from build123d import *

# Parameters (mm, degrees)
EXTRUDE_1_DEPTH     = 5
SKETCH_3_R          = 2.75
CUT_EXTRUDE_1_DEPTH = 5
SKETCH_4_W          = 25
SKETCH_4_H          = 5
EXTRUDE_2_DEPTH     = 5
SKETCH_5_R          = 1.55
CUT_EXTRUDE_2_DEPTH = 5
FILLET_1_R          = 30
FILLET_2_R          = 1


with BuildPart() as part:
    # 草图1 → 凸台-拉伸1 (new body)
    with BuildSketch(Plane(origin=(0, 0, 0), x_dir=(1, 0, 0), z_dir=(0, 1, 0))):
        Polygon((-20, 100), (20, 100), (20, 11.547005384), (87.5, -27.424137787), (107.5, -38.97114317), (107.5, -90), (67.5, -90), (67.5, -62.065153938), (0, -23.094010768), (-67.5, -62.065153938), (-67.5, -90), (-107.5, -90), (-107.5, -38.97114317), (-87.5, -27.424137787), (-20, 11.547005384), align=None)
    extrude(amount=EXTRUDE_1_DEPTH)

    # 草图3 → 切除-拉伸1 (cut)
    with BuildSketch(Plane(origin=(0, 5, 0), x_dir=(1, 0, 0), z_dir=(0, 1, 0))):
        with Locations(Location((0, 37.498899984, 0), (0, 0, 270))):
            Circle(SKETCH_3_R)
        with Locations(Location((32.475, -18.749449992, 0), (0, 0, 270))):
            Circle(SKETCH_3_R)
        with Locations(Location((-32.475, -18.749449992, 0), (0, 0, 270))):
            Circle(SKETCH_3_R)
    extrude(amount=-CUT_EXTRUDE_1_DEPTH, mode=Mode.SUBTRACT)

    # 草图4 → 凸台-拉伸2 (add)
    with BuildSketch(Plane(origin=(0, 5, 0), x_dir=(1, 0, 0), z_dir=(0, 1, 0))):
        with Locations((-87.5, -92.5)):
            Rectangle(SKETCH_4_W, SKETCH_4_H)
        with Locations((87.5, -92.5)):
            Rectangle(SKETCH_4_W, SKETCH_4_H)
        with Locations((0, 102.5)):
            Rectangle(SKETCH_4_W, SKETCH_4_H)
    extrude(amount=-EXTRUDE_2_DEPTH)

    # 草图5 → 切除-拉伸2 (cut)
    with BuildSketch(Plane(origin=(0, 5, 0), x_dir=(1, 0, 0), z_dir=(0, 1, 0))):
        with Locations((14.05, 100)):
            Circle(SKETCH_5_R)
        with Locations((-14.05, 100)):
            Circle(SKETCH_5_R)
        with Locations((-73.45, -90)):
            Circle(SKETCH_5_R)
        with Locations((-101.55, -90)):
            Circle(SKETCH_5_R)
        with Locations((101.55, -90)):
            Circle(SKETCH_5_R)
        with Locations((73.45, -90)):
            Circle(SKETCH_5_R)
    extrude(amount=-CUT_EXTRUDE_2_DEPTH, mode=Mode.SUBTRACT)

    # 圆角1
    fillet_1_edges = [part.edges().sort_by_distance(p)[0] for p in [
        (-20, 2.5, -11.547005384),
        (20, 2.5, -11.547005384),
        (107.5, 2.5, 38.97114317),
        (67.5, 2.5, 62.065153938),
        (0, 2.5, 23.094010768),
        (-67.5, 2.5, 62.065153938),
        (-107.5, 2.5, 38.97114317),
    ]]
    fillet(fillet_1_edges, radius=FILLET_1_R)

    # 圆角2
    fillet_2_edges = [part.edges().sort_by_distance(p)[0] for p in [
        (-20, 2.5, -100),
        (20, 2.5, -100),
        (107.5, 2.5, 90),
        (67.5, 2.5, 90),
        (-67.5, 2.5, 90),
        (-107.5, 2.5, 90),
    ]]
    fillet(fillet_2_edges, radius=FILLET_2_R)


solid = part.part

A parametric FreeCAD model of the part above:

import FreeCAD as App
import Part
import Sketcher

V = App.Vector
Q = App.Units.Quantity


def edges_at(feature, points):
    """Names of the edges that pass closest to the given points."""
    edges = feature.Shape.Edges
    near = lambda p: min(range(len(edges)), key=lambda i: edges[i].distToShape(Part.Vertex(*p))[0])
    return sorted({f"Edge{near(p) + 1}" for p in points})

doc = App.newDocument("Part")
params = doc.addObject("Spreadsheet::Sheet", "Params")
for row, (alias, value) in enumerate([
    ("sketch1_width", "40 mm"),
    ("pad1_length", "5 mm"),
    ("sketch2_diameter", "5.5 mm"),
    ("pocket1_length", "5 mm"),
    ("sketch3_width", "25 mm"),
    ("sketch3_height", "5 mm"),
    ("pad2_length", "5 mm"),
    ("sketch4_diameter", "3.1 mm"),
    ("pocket2_length", "5 mm"),
    ("fillet_radius", "30 mm"),
    ("fillet2_radius", "1 mm"),
], start=1):
    params.set(f"A{row}", alias)
    params.set(f"B{row}", "=" + value)
    params.setAlias(f"B{row}", alias)

body = doc.addObject("PartDesign::Body", "Body")

sketch1 = body.newObject("Sketcher::SketchObject", "Sketch")
sketch1.AttachmentSupport = (doc.getObject("XZ_Plane"), [""])
sketch1.MapMode = "FlatFace"
sketch1.addGeometry(Part.LineSegment(V(20, -100, 0), V(-20, -100, 0)), False)
sketch1.addGeometry(Part.LineSegment(V(-20, -100, 0), V(-20, -12, 0)), False)
sketch1.addGeometry(Part.LineSegment(V(-20, -12, 0), V(-88, 27, 0)), False)
sketch1.addGeometry(Part.LineSegment(V(-88, 27, 0), V(-108, 39, 0)), False)
sketch1.addGeometry(Part.LineSegment(V(-108, 39, 0), V(-108, 90, 0)), False)
sketch1.addGeometry(Part.LineSegment(V(-108, 90, 0), V(-68, 90, 0)), False)
sketch1.addGeometry(Part.LineSegment(V(-68, 90, 0), V(-68, 62, 0)), False)
sketch1.addGeometry(Part.LineSegment(V(-68, 62, 0), V(0, 23, 0)), False)
sketch1.addGeometry(Part.LineSegment(V(0, 23, 0), V(68, 62, 0)), False)
sketch1.addGeometry(Part.LineSegment(V(68, 62, 0), V(68, 90, 0)), False)
sketch1.addGeometry(Part.LineSegment(V(68, 90, 0), V(108, 90, 0)), False)
sketch1.addGeometry(Part.LineSegment(V(108, 90, 0), V(108, 39, 0)), False)
sketch1.addGeometry(Part.LineSegment(V(108, 39, 0), V(88, 27, 0)), False)
sketch1.addGeometry(Part.LineSegment(V(88, 27, 0), V(20, -12, 0)), False)
sketch1.addGeometry(Part.LineSegment(V(20, -12, 0), V(20, -100, 0)), False)
sketch1.addConstraint(Sketcher.Constraint("Coincident", 0, 2, 1, 1))
sketch1.addConstraint(Sketcher.Constraint("Coincident", 1, 2, 2, 1))
sketch1.addConstraint(Sketcher.Constraint("Coincident", 2, 2, 3, 1))
sketch1.addConstraint(Sketcher.Constraint("Coincident", 3, 2, 4, 1))
sketch1.addConstraint(Sketcher.Constraint("Coincident", 4, 2, 5, 1))
sketch1.addConstraint(Sketcher.Constraint("Coincident", 5, 2, 6, 1))
sketch1.addConstraint(Sketcher.Constraint("Coincident", 6, 2, 7, 1))
sketch1.addConstraint(Sketcher.Constraint("Coincident", 7, 2, 8, 1))
sketch1.addConstraint(Sketcher.Constraint("Coincident", 8, 2, 9, 1))
sketch1.addConstraint(Sketcher.Constraint("Coincident", 9, 2, 10, 1))
sketch1.addConstraint(Sketcher.Constraint("Coincident", 10, 2, 11, 1))
sketch1.addConstraint(Sketcher.Constraint("Coincident", 11, 2, 12, 1))
sketch1.addConstraint(Sketcher.Constraint("Coincident", 12, 2, 13, 1))
sketch1.addConstraint(Sketcher.Constraint("Coincident", 13, 2, 14, 1))
sketch1.addConstraint(Sketcher.Constraint("Coincident", 14, 2, 0, 1))
sketch1.addConstraint(Sketcher.Constraint("Horizontal", 0))
sketch1.addConstraint(Sketcher.Constraint("Vertical", 1))
sketch1.addConstraint(Sketcher.Constraint("Vertical", 4))
sketch1.addConstraint(Sketcher.Constraint("Horizontal", 5))
sketch1.addConstraint(Sketcher.Constraint("Vertical", 6))
sketch1.addConstraint(Sketcher.Constraint("Vertical", 9))
sketch1.addConstraint(Sketcher.Constraint("Horizontal", 10))
sketch1.addConstraint(Sketcher.Constraint("Vertical", 11))
sketch1.addConstraint(Sketcher.Constraint("Vertical", 14))
sketch1.addConstraint(Sketcher.Constraint("Symmetric", 6, 2, 8, 2, -2))
sketch1.addConstraint(Sketcher.Constraint("Symmetric", 4, 2, 10, 2, -2))
sketch1.addConstraint(Sketcher.Constraint("Symmetric", 2, 2, 12, 2, -2))
sketch1.addConstraint(Sketcher.Constraint("Symmetric", 1, 2, 13, 2, -2))
sketch1.addConstraint(Sketcher.Constraint("PointOnObject", 7, 2, -2))
sketch1.addConstraint(Sketcher.Constraint("Parallel", 2, 3))
sketch1.addConstraint(Sketcher.Constraint("Parallel", 3, 7))
sketch1.addConstraint(Sketcher.Constraint("Parallel", 8, 12))
sketch1.addConstraint(Sketcher.Constraint("Equal", 0, 5))
sketch1.addConstraint(Sketcher.Constraint("Equal", 2, 7))
sketch1.addConstraint(Sketcher.Constraint("DistanceX", 0, 2, 0, 1, Q("40 mm")))
sketch1.addConstraint(Sketcher.Constraint("Angle", 2, Q("150 deg")))
sketch1.addConstraint(Sketcher.Constraint("DistanceY", 0, 2, -1, 1, Q("100 mm")))
sketch1.addConstraint(Sketcher.Constraint("DistanceY", -1, 1, 4, 2, Q("90 mm")))
sketch1.addConstraint(Sketcher.Constraint("DistanceX", 6, 2, 8, 2, Q("135 mm")))
sketch1.addConstraint(Sketcher.Constraint("DistanceY", 1, 1, 1, 2, Q("88.452995 mm")))
sketch1.addConstraint(Sketcher.Constraint("DistanceY", 6, 2, 6, 1, Q("27.934846 mm")))
sketch1.setExpression("Constraints[34]", "Params.sketch1_width")
pad1 = body.newObject("PartDesign::Pad", "Pad")
pad1.Profile = sketch1
pad1.setExpression("Length", "Params.pad1_length")
pad1.Reversed = True

sketch2 = body.newObject("Sketcher::SketchObject", "Sketch001")
sketch2.AttachmentSupport = (doc.getObject("XZ_Plane"), [""])
sketch2.MapMode = "FlatFace"
sketch2.AttachmentOffset = App.Placement(V(0, 0, -5), App.Rotation())
sketch2.addGeometry(Part.Circle(V(0, -37.5, 0), V(0, 0, 1), 2.8), False)
sketch2.addGeometry(Part.Circle(V(32.5, 18.7, 0), V(0, 0, 1), 2.8), False)
sketch2.addGeometry(Part.Circle(V(-32.5, 18.7, 0), V(0, 0, 1), 2.8), False)
sketch2.addConstraint(Sketcher.Constraint("Equal", 0, 1))
sketch2.addConstraint(Sketcher.Constraint("Equal", 1, 2))
sketch2.addConstraint(Sketcher.Constraint("Symmetric", 1, 3, 2, 3, -2))
sketch2.addConstraint(Sketcher.Constraint("PointOnObject", 0, 3, -2))
sketch2.addConstraint(Sketcher.Constraint("Diameter", 0, Q("5.5 mm")))
sketch2.addConstraint(Sketcher.Constraint("DistanceX", 2, 3, 1, 3, Q("64.95 mm")))
sketch2.addConstraint(Sketcher.Constraint("DistanceY", 0, 3, -1, 1, Q("37.4989 mm")))
sketch2.addConstraint(Sketcher.Constraint("DistanceY", -1, 1, 1, 3, Q("18.74945 mm")))
sketch2.setExpression("Constraints[4]", "Params.sketch2_diameter")
pocket1 = body.newObject("PartDesign::Pocket", "Pocket")
pocket1.Profile = sketch2
pocket1.setExpression("Length", "Params.pocket1_length")
pocket1.Reversed = True

sketch3 = body.newObject("Sketcher::SketchObject", "Sketch002")
sketch3.AttachmentSupport = (doc.getObject("XZ_Plane"), [""])
sketch3.MapMode = "FlatFace"
sketch3.AttachmentOffset = App.Placement(V(0, 0, -5), App.Rotation())
sketch3.addGeometry(Part.LineSegment(V(-100, 90, 0), V(-100, 95, 0)), False)
sketch3.addGeometry(Part.LineSegment(V(-100, 95, 0), V(-75, 95, 0)), False)
sketch3.addGeometry(Part.LineSegment(V(-75, 95, 0), V(-75, 90, 0)), False)
sketch3.addGeometry(Part.LineSegment(V(-75, 90, 0), V(-100, 90, 0)), False)
sketch3.addGeometry(Part.LineSegment(V(75, 90, 0), V(75, 95, 0)), False)
sketch3.addGeometry(Part.LineSegment(V(75, 95, 0), V(100, 95, 0)), False)
sketch3.addGeometry(Part.LineSegment(V(100, 95, 0), V(100, 90, 0)), False)
sketch3.addGeometry(Part.LineSegment(V(100, 90, 0), V(75, 90, 0)), False)
sketch3.addGeometry(Part.LineSegment(V(-12, -105, 0), V(-12, -100, 0)), False)
sketch3.addGeometry(Part.LineSegment(V(-12, -100, 0), V(12, -100, 0)), False)
sketch3.addGeometry(Part.LineSegment(V(12, -100, 0), V(12, -105, 0)), False)
sketch3.addGeometry(Part.LineSegment(V(12, -105, 0), V(-12, -105, 0)), False)
sketch3.addConstraint(Sketcher.Constraint("Coincident", 0, 2, 1, 1))
sketch3.addConstraint(Sketcher.Constraint("Coincident", 1, 2, 2, 1))
sketch3.addConstraint(Sketcher.Constraint("Coincident", 2, 2, 3, 1))
sketch3.addConstraint(Sketcher.Constraint("Coincident", 3, 2, 0, 1))
sketch3.addConstraint(Sketcher.Constraint("Coincident", 4, 2, 5, 1))
sketch3.addConstraint(Sketcher.Constraint("Coincident", 5, 2, 6, 1))
sketch3.addConstraint(Sketcher.Constraint("Coincident", 6, 2, 7, 1))
sketch3.addConstraint(Sketcher.Constraint("Coincident", 7, 2, 4, 1))
sketch3.addConstraint(Sketcher.Constraint("Coincident", 8, 2, 9, 1))
sketch3.addConstraint(Sketcher.Constraint("Coincident", 9, 2, 10, 1))
sketch3.addConstraint(Sketcher.Constraint("Coincident", 10, 2, 11, 1))
sketch3.addConstraint(Sketcher.Constraint("Coincident", 11, 2, 8, 1))
sketch3.addConstraint(Sketcher.Constraint("Vertical", 0))
sketch3.addConstraint(Sketcher.Constraint("Horizontal", 1))
sketch3.addConstraint(Sketcher.Constraint("Vertical", 2))
sketch3.addConstraint(Sketcher.Constraint("Horizontal", 3))
sketch3.addConstraint(Sketcher.Constraint("Vertical", 4))
sketch3.addConstraint(Sketcher.Constraint("Horizontal", 5))
sketch3.addConstraint(Sketcher.Constraint("Vertical", 6))
sketch3.addConstraint(Sketcher.Constraint("Horizontal", 7))
sketch3.addConstraint(Sketcher.Constraint("Vertical", 8))
sketch3.addConstraint(Sketcher.Constraint("Horizontal", 9))
sketch3.addConstraint(Sketcher.Constraint("Vertical", 10))
sketch3.addConstraint(Sketcher.Constraint("Horizontal", 11))
sketch3.addConstraint(Sketcher.Constraint("Symmetric", 1, 2, 4, 2, -2))
sketch3.addConstraint(Sketcher.Constraint("Symmetric", 3, 2, 6, 2, -2))
sketch3.addConstraint(Sketcher.Constraint("Equal", 7, 9))
sketch3.addConstraint(Sketcher.Constraint("Equal", 6, 8))
sketch3.addConstraint(Sketcher.Constraint("DistanceX", 1, 1, 1, 2, Q("25 mm")))
sketch3.addConstraint(Sketcher.Constraint("DistanceY", 0, 1, 0, 2, Q("5 mm")))
sketch3.addConstraint(Sketcher.Constraint("DistanceX", 0, 2, -1, 1, Q("100 mm")))
sketch3.addConstraint(Sketcher.Constraint("DistanceY", -1, 1, 0, 2, Q("95 mm")))
sketch3.addConstraint(Sketcher.Constraint("DistanceY", 8, 2, -1, 1, Q("100 mm")))
sketch3.addConstraint(Sketcher.Constraint("DistanceX", 8, 2, -1, 1, Q("12.5 mm")))
sketch3.setExpression("Constraints[28]", "Params.sketch3_width")
sketch3.setExpression("Constraints[29]", "Params.sketch3_height")
pad2 = body.newObject("PartDesign::Pad", "Pad001")
pad2.Profile = sketch3
pad2.setExpression("Length", "Params.pad2_length")

sketch4 = body.newObject("Sketcher::SketchObject", "Sketch003")
sketch4.AttachmentSupport = (doc.getObject("XZ_Plane"), [""])
sketch4.MapMode = "FlatFace"
sketch4.AttachmentOffset = App.Placement(V(0, 0, -5), App.Rotation())
sketch4.addGeometry(Part.Circle(V(14.1, -100, 0), V(0, 0, 1), 1.6), False)
sketch4.addGeometry(Part.Circle(V(-14.1, -100, 0), V(0, 0, 1), 1.6), False)
sketch4.addGeometry(Part.Circle(V(-73.5, 90, 0), V(0, 0, 1), 1.6), False)
sketch4.addGeometry(Part.Circle(V(-101.5, 90, 0), V(0, 0, 1), 1.6), False)
sketch4.addGeometry(Part.Circle(V(101.5, 90, 0), V(0, 0, 1), 1.6), False)
sketch4.addGeometry(Part.Circle(V(73.5, 90, 0), V(0, 0, 1), 1.6), False)
sketch4.addConstraint(Sketcher.Constraint("Equal", 0, 1))
sketch4.addConstraint(Sketcher.Constraint("Equal", 1, 2))
sketch4.addConstraint(Sketcher.Constraint("Equal", 2, 3))
sketch4.addConstraint(Sketcher.Constraint("Equal", 3, 4))
sketch4.addConstraint(Sketcher.Constraint("Equal", 4, 5))
sketch4.addConstraint(Sketcher.Constraint("Symmetric", 0, 3, 1, 3, -2))
sketch4.addConstraint(Sketcher.Constraint("Symmetric", 3, 3, 4, 3, -2))
sketch4.addConstraint(Sketcher.Constraint("Symmetric", 2, 3, 5, 3, -2))
sketch4.addConstraint(Sketcher.Constraint("Horizontal", 2, 3, 3, 3))
sketch4.addConstraint(Sketcher.Constraint("Diameter", 0, Q("3.1 mm")))
sketch4.addConstraint(Sketcher.Constraint("DistanceY", 0, 3, -1, 1, Q("100 mm")))
sketch4.addConstraint(Sketcher.Constraint("DistanceY", -1, 1, 2, 3, Q("90 mm")))
sketch4.addConstraint(Sketcher.Constraint("DistanceX", 2, 3, 4, 3, Q("175 mm")))
sketch4.addConstraint(Sketcher.Constraint("DistanceX", 1, 3, 0, 3, Q("28.1 mm")))
sketch4.addConstraint(Sketcher.Constraint("DistanceX", 2, 3, 1, 3, Q("59.4 mm")))
sketch4.setExpression("Constraints[9]", "Params.sketch4_diameter")
pocket2 = body.newObject("PartDesign::Pocket", "Pocket001")
pocket2.Profile = sketch4
pocket2.setExpression("Length", "Params.pocket2_length")
pocket2.Reversed = True
doc.recompute()

fillet = body.newObject("PartDesign::Fillet", "Fillet")
fillet.Base = (pocket2, edges_at(pocket2, [
    (-20, 2.5, -11.547),
    (20, 2.5, -11.547),
    (107.5, 2.5, 38.971),
    (67.5, 2.5, 62.065),
    (0, 2.5, 23.094),
    (-67.5, 2.5, 62.065),
    (-107.5, 2.5, 38.971),
]))
fillet.setExpression("Radius", "Params.fillet_radius")
doc.recompute()

fillet2 = body.newObject("PartDesign::Fillet", "Fillet001")
fillet2.Base = (fillet, edges_at(fillet, [
    (-20, 2.5, -100),
    (20, 2.5, -100),
    (107.5, 2.5, 90),
    (67.5, 2.5, 90),
    (-67.5, 2.5, 90),
    (-107.5, 2.5, 90),
]))
fillet2.setExpression("Radius", "Params.fillet2_radius")

doc.recompute()
